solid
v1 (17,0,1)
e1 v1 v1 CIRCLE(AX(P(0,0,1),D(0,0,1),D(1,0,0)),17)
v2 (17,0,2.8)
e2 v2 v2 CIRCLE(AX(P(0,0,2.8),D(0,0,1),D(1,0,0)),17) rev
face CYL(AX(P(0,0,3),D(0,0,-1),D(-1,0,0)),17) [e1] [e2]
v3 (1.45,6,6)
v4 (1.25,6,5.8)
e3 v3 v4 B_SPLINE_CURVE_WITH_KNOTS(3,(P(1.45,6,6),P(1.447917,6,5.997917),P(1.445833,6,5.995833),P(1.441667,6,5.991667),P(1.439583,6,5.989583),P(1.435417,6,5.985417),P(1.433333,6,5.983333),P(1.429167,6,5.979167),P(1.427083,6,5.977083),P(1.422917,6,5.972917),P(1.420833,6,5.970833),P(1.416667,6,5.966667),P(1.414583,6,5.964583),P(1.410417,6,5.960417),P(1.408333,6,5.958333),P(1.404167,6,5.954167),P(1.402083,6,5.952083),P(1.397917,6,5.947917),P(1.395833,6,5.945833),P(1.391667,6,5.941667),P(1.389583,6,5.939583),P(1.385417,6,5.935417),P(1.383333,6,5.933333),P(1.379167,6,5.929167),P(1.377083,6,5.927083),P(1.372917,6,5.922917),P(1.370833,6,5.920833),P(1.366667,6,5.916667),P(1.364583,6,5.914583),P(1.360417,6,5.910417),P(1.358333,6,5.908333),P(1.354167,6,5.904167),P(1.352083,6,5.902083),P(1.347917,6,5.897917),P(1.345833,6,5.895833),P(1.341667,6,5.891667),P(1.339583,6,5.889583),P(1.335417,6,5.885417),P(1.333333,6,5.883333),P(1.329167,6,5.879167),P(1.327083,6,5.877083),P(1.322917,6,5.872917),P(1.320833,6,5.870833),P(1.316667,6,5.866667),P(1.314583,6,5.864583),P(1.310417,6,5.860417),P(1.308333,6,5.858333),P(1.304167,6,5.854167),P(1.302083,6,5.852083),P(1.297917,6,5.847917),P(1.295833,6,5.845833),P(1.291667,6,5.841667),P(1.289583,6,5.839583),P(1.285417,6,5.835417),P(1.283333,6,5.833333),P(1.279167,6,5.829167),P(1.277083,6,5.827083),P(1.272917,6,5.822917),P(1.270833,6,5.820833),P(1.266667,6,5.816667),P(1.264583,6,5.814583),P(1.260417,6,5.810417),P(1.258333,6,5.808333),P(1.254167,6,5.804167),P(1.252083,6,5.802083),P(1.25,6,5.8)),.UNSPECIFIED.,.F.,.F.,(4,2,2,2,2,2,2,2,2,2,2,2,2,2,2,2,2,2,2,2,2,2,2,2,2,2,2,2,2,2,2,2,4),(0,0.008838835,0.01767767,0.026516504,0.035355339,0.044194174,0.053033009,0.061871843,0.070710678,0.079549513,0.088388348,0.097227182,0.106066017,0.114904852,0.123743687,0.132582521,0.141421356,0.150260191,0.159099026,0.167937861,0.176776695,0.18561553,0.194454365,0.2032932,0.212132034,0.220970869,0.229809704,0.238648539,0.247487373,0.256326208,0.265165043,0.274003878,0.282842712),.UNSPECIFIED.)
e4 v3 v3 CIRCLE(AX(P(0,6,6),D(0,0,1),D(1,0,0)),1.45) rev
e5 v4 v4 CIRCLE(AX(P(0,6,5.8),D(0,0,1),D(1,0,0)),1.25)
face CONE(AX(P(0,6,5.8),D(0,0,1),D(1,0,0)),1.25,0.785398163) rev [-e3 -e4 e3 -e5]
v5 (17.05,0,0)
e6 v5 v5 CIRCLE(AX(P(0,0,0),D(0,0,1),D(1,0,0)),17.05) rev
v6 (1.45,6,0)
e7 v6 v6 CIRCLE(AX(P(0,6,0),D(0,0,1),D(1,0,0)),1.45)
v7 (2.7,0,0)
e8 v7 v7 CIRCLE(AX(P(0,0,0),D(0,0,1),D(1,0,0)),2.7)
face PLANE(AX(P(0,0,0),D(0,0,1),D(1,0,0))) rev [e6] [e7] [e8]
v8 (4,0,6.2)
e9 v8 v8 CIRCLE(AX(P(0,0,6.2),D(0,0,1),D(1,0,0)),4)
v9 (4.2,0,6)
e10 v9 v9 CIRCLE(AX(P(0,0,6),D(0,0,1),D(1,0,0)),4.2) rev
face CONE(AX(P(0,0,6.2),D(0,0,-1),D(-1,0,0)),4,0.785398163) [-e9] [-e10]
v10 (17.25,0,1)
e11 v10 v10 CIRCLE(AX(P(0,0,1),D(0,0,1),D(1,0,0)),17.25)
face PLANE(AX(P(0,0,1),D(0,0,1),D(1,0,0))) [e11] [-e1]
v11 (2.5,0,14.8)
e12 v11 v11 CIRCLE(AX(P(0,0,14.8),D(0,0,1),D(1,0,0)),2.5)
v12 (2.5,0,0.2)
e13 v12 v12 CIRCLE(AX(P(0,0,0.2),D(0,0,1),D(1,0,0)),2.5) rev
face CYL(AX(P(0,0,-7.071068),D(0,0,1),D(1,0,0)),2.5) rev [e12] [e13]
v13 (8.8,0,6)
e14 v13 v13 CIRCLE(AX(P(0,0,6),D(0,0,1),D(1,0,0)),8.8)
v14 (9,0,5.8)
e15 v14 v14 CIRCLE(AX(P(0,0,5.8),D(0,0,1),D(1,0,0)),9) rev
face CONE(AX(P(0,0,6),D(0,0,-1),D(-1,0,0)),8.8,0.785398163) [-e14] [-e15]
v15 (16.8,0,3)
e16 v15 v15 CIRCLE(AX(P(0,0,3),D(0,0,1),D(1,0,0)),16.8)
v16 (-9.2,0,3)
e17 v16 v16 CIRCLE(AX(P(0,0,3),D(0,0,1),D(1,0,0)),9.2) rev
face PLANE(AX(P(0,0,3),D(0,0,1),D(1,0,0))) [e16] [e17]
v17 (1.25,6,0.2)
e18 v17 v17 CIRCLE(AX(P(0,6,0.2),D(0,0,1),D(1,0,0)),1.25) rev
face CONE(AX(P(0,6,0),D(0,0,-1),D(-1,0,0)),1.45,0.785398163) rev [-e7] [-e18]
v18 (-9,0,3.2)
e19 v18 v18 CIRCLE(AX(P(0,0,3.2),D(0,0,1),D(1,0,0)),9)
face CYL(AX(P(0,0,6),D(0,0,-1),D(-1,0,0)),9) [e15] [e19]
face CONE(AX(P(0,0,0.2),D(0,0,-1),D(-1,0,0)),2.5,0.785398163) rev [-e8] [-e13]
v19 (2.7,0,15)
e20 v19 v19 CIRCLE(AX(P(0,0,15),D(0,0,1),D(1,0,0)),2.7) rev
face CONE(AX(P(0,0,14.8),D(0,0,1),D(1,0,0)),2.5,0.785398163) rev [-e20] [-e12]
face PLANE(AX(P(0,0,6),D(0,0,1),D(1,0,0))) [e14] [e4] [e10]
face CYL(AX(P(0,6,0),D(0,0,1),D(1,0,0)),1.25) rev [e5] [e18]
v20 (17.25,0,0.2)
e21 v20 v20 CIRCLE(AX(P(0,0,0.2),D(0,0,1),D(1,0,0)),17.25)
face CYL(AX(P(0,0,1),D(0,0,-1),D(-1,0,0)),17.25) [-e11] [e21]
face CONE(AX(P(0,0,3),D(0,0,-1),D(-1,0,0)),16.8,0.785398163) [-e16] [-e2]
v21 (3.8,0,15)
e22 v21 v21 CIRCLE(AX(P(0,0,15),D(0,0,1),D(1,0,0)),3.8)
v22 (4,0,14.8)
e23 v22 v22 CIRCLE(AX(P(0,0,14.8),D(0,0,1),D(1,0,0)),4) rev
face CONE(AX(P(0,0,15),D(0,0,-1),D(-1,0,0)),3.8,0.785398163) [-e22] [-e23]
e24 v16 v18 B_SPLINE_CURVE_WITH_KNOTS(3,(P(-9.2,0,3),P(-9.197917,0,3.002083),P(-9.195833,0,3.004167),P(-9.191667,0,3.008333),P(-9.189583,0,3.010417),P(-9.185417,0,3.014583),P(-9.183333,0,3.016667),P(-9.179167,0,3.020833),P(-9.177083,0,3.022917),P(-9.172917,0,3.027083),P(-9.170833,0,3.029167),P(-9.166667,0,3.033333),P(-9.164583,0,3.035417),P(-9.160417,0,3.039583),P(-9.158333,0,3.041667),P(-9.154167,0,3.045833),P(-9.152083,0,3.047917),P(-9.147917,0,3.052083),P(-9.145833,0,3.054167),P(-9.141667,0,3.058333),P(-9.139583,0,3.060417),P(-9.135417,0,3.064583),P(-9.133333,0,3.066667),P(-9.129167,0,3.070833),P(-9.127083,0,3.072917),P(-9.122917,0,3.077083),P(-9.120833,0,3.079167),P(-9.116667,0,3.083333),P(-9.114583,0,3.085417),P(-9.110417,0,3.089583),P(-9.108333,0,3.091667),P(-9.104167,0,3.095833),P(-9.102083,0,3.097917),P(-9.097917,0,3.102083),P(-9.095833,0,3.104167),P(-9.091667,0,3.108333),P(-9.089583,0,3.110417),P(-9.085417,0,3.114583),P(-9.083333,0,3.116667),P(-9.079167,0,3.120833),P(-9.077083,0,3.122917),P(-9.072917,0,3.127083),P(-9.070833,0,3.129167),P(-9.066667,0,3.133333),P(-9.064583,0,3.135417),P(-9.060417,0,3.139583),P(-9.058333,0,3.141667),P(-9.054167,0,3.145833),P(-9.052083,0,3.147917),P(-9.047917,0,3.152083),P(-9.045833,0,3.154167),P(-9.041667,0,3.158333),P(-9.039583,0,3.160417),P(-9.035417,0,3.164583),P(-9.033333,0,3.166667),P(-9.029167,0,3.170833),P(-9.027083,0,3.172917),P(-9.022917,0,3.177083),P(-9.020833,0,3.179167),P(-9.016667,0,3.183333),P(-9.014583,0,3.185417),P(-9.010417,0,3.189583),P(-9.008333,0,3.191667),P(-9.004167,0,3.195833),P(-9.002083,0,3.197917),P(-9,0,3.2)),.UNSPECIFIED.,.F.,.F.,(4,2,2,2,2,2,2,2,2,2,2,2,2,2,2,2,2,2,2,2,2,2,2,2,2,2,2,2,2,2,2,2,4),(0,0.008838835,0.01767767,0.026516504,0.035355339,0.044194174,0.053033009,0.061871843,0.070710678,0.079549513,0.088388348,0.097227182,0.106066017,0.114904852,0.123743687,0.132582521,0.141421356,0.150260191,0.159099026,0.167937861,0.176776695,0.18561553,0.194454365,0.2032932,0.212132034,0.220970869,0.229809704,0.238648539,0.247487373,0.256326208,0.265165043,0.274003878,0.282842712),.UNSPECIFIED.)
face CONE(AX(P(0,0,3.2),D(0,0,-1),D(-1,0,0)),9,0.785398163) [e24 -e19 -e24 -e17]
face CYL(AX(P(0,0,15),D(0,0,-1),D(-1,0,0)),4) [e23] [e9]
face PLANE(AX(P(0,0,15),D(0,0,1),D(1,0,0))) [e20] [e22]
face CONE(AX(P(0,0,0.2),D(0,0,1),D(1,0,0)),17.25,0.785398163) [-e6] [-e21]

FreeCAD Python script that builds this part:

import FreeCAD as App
import Part
import Sketcher
Q = App.Units.Quantity


def edges_at(feature, points):
    """Names of the edges that pass closest to the given points."""
    edges = feature.Shape.Edges
    near = lambda p: min(range(len(edges)), key=lambda i: edges[i].distToShape(Part.Vertex(*p))[0])
    return sorted({f"Edge{near(p) + 1}" for p in points})

doc = App.newDocument("Part")
body = doc.addObject("PartDesign::Body", "Body")

# Sketch on XY plane
sketch1 = body.newObject("Sketcher::SketchObject", "Sketch")
sketch1.AttachmentSupport = (doc.getObject("XY_Plane"), [""])
sketch1.MapMode = "FlatFace"
sketch1.addGeometry([
    Part.Circle(App.Vector(0, 0, 0), App.Vector(0, 0, 1), 17.25),
    Part.Circle(App.Vector(0, 0, 0), App.Vector(0, 0, 1), 17),
], False)
sketch1.addConstraint([
    Sketcher.Constraint("Coincident", 0, 3, -1, 1),
    Sketcher.Constraint("Coincident", 1, 3, -1, 1),
    Sketcher.Constraint("Diameter", 1, Q("34 mm")),
    Sketcher.Constraint("Diameter", 0, Q("34.5 mm")),
])
pad1 = body.newObject("PartDesign::Pad", "Pad")
pad1.Profile = sketch1
pad1.Length = 1

# Sketch on XY plane
sketch2 = body.newObject("Sketcher::SketchObject", "Sketch001")
sketch2.AttachmentSupport = (doc.getObject("XY_Plane"), [""])
sketch2.MapMode = "FlatFace"
sketch2.addGeometry([
    Part.Circle(App.Vector(0, 0, 0), App.Vector(0, 0, 1), 17),
    Part.Circle(App.Vector(0, 0, 0), App.Vector(0, 0, 1), 9),
], False)
sketch2.addConstraint([
    Sketcher.Constraint("Coincident", 0, 3, -1, 1),
    Sketcher.Constraint("Coincident", 1, 3, -1, 1),
    Sketcher.Constraint("Diameter", 0, Q("34 mm")),
    Sketcher.Constraint("Diameter", 1, Q("18 mm")),
])
pad2 = body.newObject("PartDesign::Pad", "Pad001")
pad2.Profile = sketch2
pad2.Length = 3

# Sketch on XY plane
sketch3 = body.newObject("Sketcher::SketchObject", "Sketch002")
sketch3.AttachmentSupport = (doc.getObject("XY_Plane"), [""])
sketch3.MapMode = "FlatFace"
sketch3.addGeometry([
    Part.Circle(App.Vector(0, 0, 0), App.Vector(0, 0, 1), 9),
    Part.Circle(App.Vector(0, 0, 0), App.Vector(0, 0, 1), 4),
], False)
sketch3.addConstraint([
    Sketcher.Constraint("Coincident", 0, 3, -1, 1),
    Sketcher.Constraint("Coincident", 1, 3, -1, 1),
    Sketcher.Constraint("Diameter", 0, Q("18 mm")),
    Sketcher.Constraint("Diameter", 1, Q("8 mm")),
])
pad3 = body.newObject("PartDesign::Pad", "Pad002")
pad3.Profile = sketch3
pad3.Length = 6

# Sketch on XY plane
sketch4 = body.newObject("Sketcher::SketchObject", "Sketch003")
sketch4.AttachmentSupport = (doc.getObject("XY_Plane"), [""])
sketch4.MapMode = "FlatFace"
sketch4.addGeometry(Part.Circle(App.Vector(0, 0, 0), App.Vector(0, 0, 1), 4), False)
sketch4.addConstraint([
    Sketcher.Constraint("Coincident", 0, 3, -1, 1),
    Sketcher.Constraint("Diameter", 0, Q("8 mm")),
])
pad4 = body.newObject("PartDesign::Pad", "Pad003")
pad4.Profile = sketch4
pad4.Length = 15

# Sketch on XY plane
sketch5 = body.newObject("Sketcher::SketchObject", "Sketch004")
sketch5.AttachmentSupport = (doc.getObject("XY_Plane"), [""])
sketch5.MapMode = "FlatFace"
sketch5.AttachmentOffset = App.Placement(App.Vector(0, 0, 15), App.Rotation())
sketch5.addGeometry(Part.Circle(App.Vector(0, 0, 0), App.Vector(0, 0, 1), 2.5), False)
sketch5.addConstraint([
    Sketcher.Constraint("Coincident", 0, 3, -1, 1),
    Sketcher.Constraint("Diameter", 0, Q("5 mm")),
])
pocket1 = body.newObject("PartDesign::Pocket", "Pocket")
pocket1.Profile = sketch5
pocket1.Length = 15

# Sketch on XY plane
sketch6 = body.newObject("Sketcher::SketchObject", "Sketch005")
sketch6.AttachmentSupport = (doc.getObject("XY_Plane"), [""])
sketch6.MapMode = "FlatFace"
sketch6.AttachmentOffset = App.Placement(App.Vector(0, 0, 6), App.Rotation())
sketch6.addGeometry(Part.Circle(App.Vector(0, 6, 0), App.Vector(0, 0, 1), 1.25), False)
sketch6.addConstraint([
    Sketcher.Constraint("PointOnObject", 0, 3, -2),
    Sketcher.Constraint("Diameter", 0, Q("2.5 mm")),
    Sketcher.Constraint("DistanceY", -1, 1, 0, 3, Q("6 mm")),
])
pocket2 = body.newObject("PartDesign::Pocket", "Pocket001")
pocket2.Profile = sketch6
pocket2.Length = 6
doc.recompute()

chamfer = body.newObject("PartDesign::Chamfer", "Chamfer")
chamfer.Base = (pocket2, edges_at(pocket2, [
    (-4, 0, 6),
    (-9, 0, 6),
    (-4, 0, 15),
    (-2.5, 0, 15),
    (-2.5, 0, 0),
    (-1.25, 6, 0),
    (-1.25, 6, 6),
    (-17.25, 0, 0),
    (-9, 0, 3),
    (-17, 0, 3),
]))
chamfer.Size = 0.2

doc.recompute()
